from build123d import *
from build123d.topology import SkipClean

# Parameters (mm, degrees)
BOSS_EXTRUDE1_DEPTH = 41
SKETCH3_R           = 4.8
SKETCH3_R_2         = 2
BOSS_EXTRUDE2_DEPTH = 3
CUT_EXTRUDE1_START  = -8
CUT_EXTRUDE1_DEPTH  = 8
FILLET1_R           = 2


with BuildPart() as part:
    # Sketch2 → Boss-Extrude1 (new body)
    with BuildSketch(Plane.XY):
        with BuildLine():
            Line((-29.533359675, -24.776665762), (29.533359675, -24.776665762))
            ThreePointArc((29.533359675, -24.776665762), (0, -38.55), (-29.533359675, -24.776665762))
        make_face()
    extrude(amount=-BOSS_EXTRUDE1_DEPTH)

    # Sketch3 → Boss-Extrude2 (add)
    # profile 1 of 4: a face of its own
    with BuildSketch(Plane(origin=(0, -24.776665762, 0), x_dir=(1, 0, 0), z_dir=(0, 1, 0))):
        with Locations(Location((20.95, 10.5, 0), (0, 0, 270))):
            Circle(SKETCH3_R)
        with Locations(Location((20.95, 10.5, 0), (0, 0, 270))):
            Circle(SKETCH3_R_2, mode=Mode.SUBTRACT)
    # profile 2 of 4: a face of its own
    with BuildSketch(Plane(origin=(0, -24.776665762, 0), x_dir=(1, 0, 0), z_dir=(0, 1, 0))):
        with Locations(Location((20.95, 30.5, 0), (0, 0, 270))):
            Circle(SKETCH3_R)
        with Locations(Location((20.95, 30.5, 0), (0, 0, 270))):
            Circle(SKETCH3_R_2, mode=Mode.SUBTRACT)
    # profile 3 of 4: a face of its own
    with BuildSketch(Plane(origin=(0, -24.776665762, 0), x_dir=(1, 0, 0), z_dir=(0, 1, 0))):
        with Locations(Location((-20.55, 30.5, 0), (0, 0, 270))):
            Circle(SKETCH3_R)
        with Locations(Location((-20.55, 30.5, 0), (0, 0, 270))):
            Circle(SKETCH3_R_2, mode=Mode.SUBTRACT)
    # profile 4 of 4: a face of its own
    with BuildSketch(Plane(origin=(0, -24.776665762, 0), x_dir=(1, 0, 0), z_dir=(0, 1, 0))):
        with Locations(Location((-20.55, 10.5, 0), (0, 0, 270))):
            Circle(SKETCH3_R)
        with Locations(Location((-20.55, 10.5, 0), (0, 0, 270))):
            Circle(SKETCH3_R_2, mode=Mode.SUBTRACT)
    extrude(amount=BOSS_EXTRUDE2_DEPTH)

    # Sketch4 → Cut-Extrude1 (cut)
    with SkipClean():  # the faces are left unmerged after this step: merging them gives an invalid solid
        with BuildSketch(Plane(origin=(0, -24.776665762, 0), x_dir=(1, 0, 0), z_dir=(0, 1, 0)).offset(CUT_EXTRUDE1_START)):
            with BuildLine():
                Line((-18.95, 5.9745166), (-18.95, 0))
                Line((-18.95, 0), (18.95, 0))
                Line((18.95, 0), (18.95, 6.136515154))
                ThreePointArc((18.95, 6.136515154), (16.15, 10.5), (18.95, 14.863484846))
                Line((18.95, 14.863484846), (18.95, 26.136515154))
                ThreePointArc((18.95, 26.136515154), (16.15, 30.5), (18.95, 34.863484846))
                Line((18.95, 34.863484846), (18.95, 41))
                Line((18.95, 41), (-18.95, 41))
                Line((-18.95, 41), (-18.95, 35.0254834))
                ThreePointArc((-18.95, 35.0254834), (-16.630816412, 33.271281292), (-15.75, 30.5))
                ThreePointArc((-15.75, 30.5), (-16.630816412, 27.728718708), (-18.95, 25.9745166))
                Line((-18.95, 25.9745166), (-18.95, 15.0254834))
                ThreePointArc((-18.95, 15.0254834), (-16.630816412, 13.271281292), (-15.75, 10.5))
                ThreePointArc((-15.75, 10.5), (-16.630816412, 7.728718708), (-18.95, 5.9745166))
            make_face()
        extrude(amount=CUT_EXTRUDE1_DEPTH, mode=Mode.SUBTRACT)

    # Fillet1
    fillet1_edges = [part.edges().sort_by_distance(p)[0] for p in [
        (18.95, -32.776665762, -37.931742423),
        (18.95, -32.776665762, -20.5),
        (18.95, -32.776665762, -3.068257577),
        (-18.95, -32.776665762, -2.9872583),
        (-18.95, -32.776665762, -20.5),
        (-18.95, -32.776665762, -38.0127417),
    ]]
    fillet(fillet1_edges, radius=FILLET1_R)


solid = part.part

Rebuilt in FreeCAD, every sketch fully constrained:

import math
import FreeCAD as App
import Part
import Sketcher
from FreeCAD import Vector
Q = App.Units.Quantity


def edges_at(feature, points):
    """Names of the edges that pass closest to the given points."""
    edges = feature.Shape.Edges
    near = lambda p: min(range(len(edges)), key=lambda i: edges[i].distToShape(Part.Vertex(*p))[0])
    return sorted({f"Edge{near(p) + 1}" for p in points})

doc = App.newDocument("Part")
body = doc.addObject("PartDesign::Body", "Body")

# Sketch on XY plane
sketch1 = body.newObject("Sketcher::SketchObject", "Sketch")
sketch1.AttachmentSupport = (doc.getObject("XY_Plane"), [""])
sketch1.MapMode = "FlatFace"
sketch1.addGeometry([
    Part.LineSegment(Vector(30, -25, 0), Vector(-30, -25, 0)),
    Part.ArcOfCircle(Part.Circle(Vector(0, 0, 0), Vector(0, 0, 1), 39), math.radians(-140), math.radians(-40)),
], False)
sketch1.addConstraint([
    Sketcher.Constraint("Coincident", 0, 1, 1, 2),
    Sketcher.Constraint("Coincident", 1, 1, 0, 2),
    Sketcher.Constraint("Horizontal", 0),
    Sketcher.Constraint("Coincident", 1, 3, -1, 1),
    Sketcher.Constraint("Radius", 1, Q("38.55 mm")),
    Sketcher.Constraint("DistanceX", 0, 2, 0, 1, Q("59.066719 mm")),
])
pad1 = body.newObject("PartDesign::Pad", "Pad")
pad1.Profile = sketch1
pad1.Length = 41
pad1.Reversed = True

# Sketch on XZ plane
sketch2 = body.newObject("Sketcher::SketchObject", "Sketch001")
sketch2.AttachmentSupport = (doc.getObject("XZ_Plane"), [""])
sketch2.MapMode = "FlatFace"
sketch2.AttachmentOffset = App.Placement(Vector(0, 0, 24.776666), App.Rotation())
sketch2.addGeometry([
    Part.Circle(Vector(20.9, -10.5, 0), Vector(0, 0, 1), 4.8),  # 0
    Part.Circle(Vector(20.9, -10.5, 0), Vector(0, 0, 1), 2),  # 1
    Part.Circle(Vector(20.9, -30.5, 0), Vector(0, 0, 1), 4.8),  # 2
    Part.Circle(Vector(20.9, -30.5, 0), Vector(0, 0, 1), 2),  # 3
    Part.Circle(Vector(-20.6, -30.5, 0), Vector(0, 0, 1), 4.8),  # 4
    Part.Circle(Vector(-20.6, -30.5, 0), Vector(0, 0, 1), 2),  # 5
    Part.Circle(Vector(-20.6, -10.5, 0), Vector(0, 0, 1), 4.8),  # 6
    Part.Circle(Vector(-20.6, -10.5, 0), Vector(0, 0, 1), 2),  # 7
], False)
sketch2.addConstraint([
    Sketcher.Constraint("Coincident", 1, 3, 0, 3),
    Sketcher.Constraint("Coincident", 3, 3, 2, 3),
    Sketcher.Constraint("Coincident", 5, 3, 4, 3),
    Sketcher.Constraint("Coincident", 7, 3, 6, 3),
    Sketcher.Constraint("Equal", 0, 2),
    Sketcher.Constraint("Equal", 1, 3),
    Sketcher.Constraint("Equal", 2, 4),
    Sketcher.Constraint("Equal", 3, 5),
    Sketcher.Constraint("Equal", 4, 6),
    Sketcher.Constraint("Equal", 5, 7),
    Sketcher.Constraint("Horizontal", 3, 3, 4, 3),
    Sketcher.Constraint("Horizontal", 1, 3, 6, 3),
    Sketcher.Constraint("Vertical", 1, 3, 2, 3),
    Sketcher.Constraint("Vertical", 5, 3, 6, 3),
    Sketcher.Constraint("Diameter", 1, Q("4 mm")),
    Sketcher.Constraint("Diameter", 0, Q("9.6 mm")),
    Sketcher.Constraint("DistanceY", 2, 3, 0, 3, Q("20 mm")),
    Sketcher.Constraint("DistanceY", 0, 3, -1, 1, Q("10.5 mm")),
    Sketcher.Constraint("DistanceX", 4, 3, 2, 3, Q("41.5 mm")),
    Sketcher.Constraint("DistanceX", -1, 1, 0, 3, Q("20.95 mm")),
])
pad2 = body.newObject("PartDesign::Pad", "Pad001")
pad2.Profile = sketch2
pad2.Length = 3
pad2.Reversed = True

# Sketch on XZ plane
sketch3 = body.newObject("Sketcher::SketchObject", "Sketch002")
sketch3.AttachmentSupport = (doc.getObject("XZ_Plane"), [""])
sketch3.MapMode = "FlatFace"
sketch3.AttachmentOffset = App.Placement(Vector(0, 0, 32.776666), App.Rotation())
sketch3.addGeometry([
    Part.LineSegment(Vector(-18.9, -6, 0), Vector(-18.9, 0, 0)),  # 0
    Part.LineSegment(Vector(-18.9, 0, 0), Vector(18.9, 0, 0)),  # 1
    Part.LineSegment(Vector(18.9, 0, 0), Vector(18.9, -6.1, 0)),  # 2
    Part.ArcOfCircle(Part.Circle(Vector(20.9, -10.5, 0), Vector(0, 0, 1), 4.8), math.radians(115), math.radians(245)),  # 3
    Part.LineSegment(Vector(18.9, -14.9, 0), Vector(18.9, -26.1, 0)),  # 4
    Part.ArcOfCircle(Part.Circle(Vector(20.9, -30.5, 0), Vector(0, 0, 1), 4.8), math.radians(115), math.radians(245)),  # 5
    Part.LineSegment(Vector(18.9, -34.9, 0), Vector(18.9, -41, 0)),  # 6
    Part.LineSegment(Vector(18.9, -41, 0), Vector(-18.9, -41, 0)),  # 7
    Part.LineSegment(Vector(-18.9, -41, 0), Vector(-18.9, -35, 0)),  # 8
    Part.ArcOfCircle(Part.Circle(Vector(-20.6, -30.5, 0), Vector(0, 0, 1), 4.8), math.radians(-71), math.radians(0)),  # 9
    Part.ArcOfCircle(Part.Circle(Vector(-20.6, -30.5, 0), Vector(0, 0, 1), 4.8), math.radians(0), math.radians(71)),  # 10
    Part.LineSegment(Vector(-18.9, -26, 0), Vector(-18.9, -15, 0)),  # 11
    Part.ArcOfCircle(Part.Circle(Vector(-20.6, -10.5, 0), Vector(0, 0, 1), 4.8), math.radians(-71), math.radians(0)),  # 12
    Part.ArcOfCircle(Part.Circle(Vector(-20.6, -10.5, 0), Vector(0, 0, 1), 4.8), math.radians(0), math.radians(71)),  # 13
], False)
sketch3.addConstraint([
    Sketcher.Constraint("Coincident", 0, 2, 1, 1),
    Sketcher.Constraint("Coincident", 1, 2, 2, 1),
    Sketcher.Constraint("Coincident", 2, 2, 3, 1),
    Sketcher.Constraint("Coincident", 3, 2, 4, 1),
    Sketcher.Constraint("Coincident", 4, 2, 5, 1),
    Sketcher.Constraint("Coincident", 5, 2, 6, 1),
    Sketcher.Constraint("Coincident", 6, 2, 7, 1),
    Sketcher.Constraint("Coincident", 7, 2, 8, 1),
    Sketcher.Constraint("Coincident", 8, 2, 9, 1),
    Sketcher.Constraint("Tangent", 9, 2, 10, 1),
    Sketcher.Constraint("Coincident", 10, 2, 11, 1),
    Sketcher.Constraint("Coincident", 11, 2, 12, 1),
    Sketcher.Constraint("Tangent", 12, 2, 13, 1),
    Sketcher.Constraint("Coincident", 13, 2, 0, 1),
    Sketcher.Constraint("Vertical", 0),
    Sketcher.Constraint("Horizontal", 1),
    Sketcher.Constraint("Vertical", 2),
    Sketcher.Constraint("Vertical", 4),
    Sketcher.Constraint("Vertical", 6),
    Sketcher.Constraint("Horizontal", 7),
    Sketcher.Constraint("Vertical", 8),
    Sketcher.Constraint("Vertical", 11),
    Sketcher.Constraint("Equal", 3, 5),
    Sketcher.Constraint("Equal", 5, 9),
    Sketcher.Constraint("Equal", 9, 10),
    Sketcher.Constraint("Equal", 10, 12),
    Sketcher.Constraint("Equal", 12, 13),
    Sketcher.Constraint("Symmetric", 0, 2, 1, 2, -1, 1),
    Sketcher.Constraint("Horizontal", 5, 3, 9, 3),
    Sketcher.Constraint("Horizontal", 3, 3, 12, 3),
    Sketcher.Constraint("Horizontal", 10, 3, 9, 2),
    Sketcher.Constraint("Horizontal", 13, 3, 12, 2),
    Sketcher.Constraint("Vertical", 3, 3, 5, 3),
    Sketcher.Constraint("Vertical", 10, 3, 12, 3),
    Sketcher.Constraint("Vertical", 2, 2, 3, 2),
    Sketcher.Constraint("Vertical", 4, 2, 5, 2),
    Sketcher.Constraint("Vertical", 0, 2, 7, 2),
    Sketcher.Constraint("Vertical", 8, 2, 10, 2),
    Sketcher.Constraint("Equal", 2, 6),
    Sketcher.Constraint("Radius", 3, Q("4.8 mm")),
    Sketcher.Constraint("DistanceX", 1, 1, 1, 2, Q("37.9 mm")),
    Sketcher.Constraint("DistanceY", 6, 2, -1, 1, Q("41 mm")),
    Sketcher.Constraint("DistanceY", 5, 3, 3, 3, Q("20 mm")),
    Sketcher.Constraint("DistanceX", 1, 2, 3, 3, Q("2 mm")),
    Sketcher.Constraint("DistanceX", 9, 3, 5, 3, Q("41.5 mm")),
])
pocket1 = body.newObject("PartDesign::Pocket", "Pocket")
pocket1.Profile = sketch3
pocket1.Length = 8
doc.recompute()

fillet = body.newObject("PartDesign::Fillet", "Fillet")
fillet.Base = (pocket1, edges_at(pocket1, [
    (18.95, -32.777, -37.932),
    (18.95, -32.777, -20.5),
    (18.95, -32.777, -3.068),
    (-18.95, -32.777, -2.987),
    (-18.95, -32.777, -20.5),
    (-18.95, -32.777, -38.013),
]))
fillet.Radius = 2

doc.recompute()
